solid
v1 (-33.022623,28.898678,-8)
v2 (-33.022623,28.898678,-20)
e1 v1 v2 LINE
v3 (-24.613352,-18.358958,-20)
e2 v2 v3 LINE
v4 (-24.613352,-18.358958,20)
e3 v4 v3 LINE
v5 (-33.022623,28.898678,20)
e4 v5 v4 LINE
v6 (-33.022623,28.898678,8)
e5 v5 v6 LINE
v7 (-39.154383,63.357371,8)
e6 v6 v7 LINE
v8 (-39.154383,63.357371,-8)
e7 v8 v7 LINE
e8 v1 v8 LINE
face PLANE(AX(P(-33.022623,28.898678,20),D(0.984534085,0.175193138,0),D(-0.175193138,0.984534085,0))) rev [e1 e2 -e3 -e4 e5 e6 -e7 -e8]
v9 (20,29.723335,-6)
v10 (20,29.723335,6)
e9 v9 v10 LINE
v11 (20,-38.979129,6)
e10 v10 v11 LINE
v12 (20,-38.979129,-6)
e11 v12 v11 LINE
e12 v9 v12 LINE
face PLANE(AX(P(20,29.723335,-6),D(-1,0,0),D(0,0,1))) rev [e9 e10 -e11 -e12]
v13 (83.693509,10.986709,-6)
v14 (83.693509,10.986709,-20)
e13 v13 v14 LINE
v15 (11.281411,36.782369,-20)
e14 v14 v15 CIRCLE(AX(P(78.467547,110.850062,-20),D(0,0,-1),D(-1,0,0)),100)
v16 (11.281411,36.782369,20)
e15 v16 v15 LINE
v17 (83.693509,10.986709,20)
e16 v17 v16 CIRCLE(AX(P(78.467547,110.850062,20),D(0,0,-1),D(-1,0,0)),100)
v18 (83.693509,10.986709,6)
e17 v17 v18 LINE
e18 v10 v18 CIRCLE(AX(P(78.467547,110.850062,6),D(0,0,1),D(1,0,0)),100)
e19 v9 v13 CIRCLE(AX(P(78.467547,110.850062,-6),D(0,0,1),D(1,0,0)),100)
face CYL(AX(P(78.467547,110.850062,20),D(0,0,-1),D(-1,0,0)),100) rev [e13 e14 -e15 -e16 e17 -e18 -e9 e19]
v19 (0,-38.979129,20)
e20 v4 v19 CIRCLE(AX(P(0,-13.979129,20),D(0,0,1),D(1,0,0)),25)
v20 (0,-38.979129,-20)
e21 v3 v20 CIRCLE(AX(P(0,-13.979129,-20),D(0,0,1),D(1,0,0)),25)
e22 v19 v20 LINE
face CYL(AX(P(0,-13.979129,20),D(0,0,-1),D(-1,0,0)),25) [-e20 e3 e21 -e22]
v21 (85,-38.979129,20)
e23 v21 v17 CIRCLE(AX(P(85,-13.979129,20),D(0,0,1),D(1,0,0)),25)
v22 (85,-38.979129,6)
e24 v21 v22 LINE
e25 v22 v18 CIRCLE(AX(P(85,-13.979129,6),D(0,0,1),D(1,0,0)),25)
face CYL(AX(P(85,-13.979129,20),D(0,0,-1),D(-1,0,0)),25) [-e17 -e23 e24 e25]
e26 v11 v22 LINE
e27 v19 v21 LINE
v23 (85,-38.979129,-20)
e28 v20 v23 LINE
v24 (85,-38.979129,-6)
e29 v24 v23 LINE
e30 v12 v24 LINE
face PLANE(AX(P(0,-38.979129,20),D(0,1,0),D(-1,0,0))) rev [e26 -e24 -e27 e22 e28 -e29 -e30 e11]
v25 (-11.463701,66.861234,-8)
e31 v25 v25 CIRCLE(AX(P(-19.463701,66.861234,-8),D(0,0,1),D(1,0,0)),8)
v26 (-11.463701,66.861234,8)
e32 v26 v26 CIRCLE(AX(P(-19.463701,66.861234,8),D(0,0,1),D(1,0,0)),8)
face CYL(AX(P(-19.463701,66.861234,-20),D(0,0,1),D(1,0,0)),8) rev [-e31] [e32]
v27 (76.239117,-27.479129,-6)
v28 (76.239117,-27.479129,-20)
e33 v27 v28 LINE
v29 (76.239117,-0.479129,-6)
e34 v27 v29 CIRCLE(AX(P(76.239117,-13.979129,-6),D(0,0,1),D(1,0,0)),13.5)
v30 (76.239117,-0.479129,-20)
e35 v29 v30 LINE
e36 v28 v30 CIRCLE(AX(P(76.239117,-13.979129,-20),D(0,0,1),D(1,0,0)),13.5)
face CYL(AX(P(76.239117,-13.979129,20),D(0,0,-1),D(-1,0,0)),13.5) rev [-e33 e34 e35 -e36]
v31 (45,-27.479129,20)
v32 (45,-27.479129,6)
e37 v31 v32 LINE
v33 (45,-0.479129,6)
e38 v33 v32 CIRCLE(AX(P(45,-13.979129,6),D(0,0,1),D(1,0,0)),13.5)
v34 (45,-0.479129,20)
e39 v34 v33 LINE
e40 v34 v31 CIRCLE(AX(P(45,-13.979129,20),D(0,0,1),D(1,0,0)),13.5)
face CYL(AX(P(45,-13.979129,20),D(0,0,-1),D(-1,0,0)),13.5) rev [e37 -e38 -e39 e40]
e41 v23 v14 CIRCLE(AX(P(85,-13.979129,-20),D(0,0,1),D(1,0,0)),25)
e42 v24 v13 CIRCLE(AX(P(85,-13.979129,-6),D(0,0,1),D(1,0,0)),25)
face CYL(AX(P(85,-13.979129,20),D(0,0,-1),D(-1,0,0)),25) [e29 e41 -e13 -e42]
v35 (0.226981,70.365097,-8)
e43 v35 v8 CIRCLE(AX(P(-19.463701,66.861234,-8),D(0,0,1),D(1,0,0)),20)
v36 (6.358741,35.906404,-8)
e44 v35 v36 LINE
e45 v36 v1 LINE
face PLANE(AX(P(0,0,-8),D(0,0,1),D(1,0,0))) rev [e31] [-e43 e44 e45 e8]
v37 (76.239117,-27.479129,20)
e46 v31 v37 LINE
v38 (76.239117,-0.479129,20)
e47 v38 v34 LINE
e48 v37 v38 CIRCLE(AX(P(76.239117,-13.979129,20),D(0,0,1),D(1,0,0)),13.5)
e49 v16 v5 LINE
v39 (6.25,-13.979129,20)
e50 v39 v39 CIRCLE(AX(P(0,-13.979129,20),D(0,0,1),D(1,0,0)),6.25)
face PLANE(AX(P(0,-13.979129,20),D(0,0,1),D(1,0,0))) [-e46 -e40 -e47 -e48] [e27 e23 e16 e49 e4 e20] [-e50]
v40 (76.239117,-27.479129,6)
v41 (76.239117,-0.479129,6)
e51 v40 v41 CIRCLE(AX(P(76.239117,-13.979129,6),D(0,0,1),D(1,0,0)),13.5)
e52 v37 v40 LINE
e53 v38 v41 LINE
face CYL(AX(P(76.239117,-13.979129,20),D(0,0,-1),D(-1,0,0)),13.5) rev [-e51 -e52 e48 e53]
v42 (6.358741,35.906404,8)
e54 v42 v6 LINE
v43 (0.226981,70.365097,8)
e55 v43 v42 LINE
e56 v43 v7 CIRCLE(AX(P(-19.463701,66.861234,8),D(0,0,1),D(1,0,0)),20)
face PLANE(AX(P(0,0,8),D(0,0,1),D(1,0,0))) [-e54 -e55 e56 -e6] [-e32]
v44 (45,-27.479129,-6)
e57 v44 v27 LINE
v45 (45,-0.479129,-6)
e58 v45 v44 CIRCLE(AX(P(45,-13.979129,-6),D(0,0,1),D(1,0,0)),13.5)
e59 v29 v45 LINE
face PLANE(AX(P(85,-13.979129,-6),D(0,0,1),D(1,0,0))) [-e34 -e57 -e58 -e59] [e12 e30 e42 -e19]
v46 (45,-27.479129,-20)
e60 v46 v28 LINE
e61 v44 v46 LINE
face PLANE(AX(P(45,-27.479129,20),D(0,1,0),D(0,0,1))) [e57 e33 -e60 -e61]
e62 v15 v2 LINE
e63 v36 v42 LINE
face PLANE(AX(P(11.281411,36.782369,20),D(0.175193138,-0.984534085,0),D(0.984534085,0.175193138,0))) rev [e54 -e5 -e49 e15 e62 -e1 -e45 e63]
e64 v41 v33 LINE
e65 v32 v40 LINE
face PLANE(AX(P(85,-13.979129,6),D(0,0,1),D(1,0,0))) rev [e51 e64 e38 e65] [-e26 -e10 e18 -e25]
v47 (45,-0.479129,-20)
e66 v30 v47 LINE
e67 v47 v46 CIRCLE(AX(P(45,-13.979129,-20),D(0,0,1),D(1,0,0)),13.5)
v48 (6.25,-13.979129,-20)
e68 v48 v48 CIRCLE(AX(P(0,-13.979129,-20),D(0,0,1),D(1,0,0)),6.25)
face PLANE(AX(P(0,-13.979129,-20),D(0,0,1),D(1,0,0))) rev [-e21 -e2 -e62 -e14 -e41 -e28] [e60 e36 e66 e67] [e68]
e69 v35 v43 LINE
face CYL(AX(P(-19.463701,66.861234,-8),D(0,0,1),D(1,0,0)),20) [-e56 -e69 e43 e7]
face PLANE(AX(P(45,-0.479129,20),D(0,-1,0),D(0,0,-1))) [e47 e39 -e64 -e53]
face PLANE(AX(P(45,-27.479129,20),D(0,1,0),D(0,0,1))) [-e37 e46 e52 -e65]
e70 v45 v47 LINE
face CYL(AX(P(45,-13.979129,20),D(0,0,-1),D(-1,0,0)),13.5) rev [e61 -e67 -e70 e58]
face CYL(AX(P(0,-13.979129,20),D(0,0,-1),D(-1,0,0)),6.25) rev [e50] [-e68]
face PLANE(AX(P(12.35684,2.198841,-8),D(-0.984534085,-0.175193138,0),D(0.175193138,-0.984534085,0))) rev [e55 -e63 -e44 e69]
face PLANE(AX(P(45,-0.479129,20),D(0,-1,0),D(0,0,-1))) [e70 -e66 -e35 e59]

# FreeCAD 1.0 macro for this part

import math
import FreeCAD as App
import Part
import Sketcher
Q = App.Units.Quantity

doc = App.newDocument("Part")
body = doc.addObject("PartDesign::Body", "Body")

sketch1 = doc.addObject("Sketcher::SketchObject", "Sketch")
body.addObject(sketch1)
sketch1.AttachmentSupport = (doc.XY_Plane, [""])
sketch1.MapMode = "FlatFace"
sketch1.addGeometry(Part.LineSegment(App.Vector(0, -39, 0), App.Vector(85, -39, 0)), False)
sketch1.addGeometry(Part.ArcOfCircle(Part.Circle(App.Vector(85, -14, 0), App.Vector(0, 0, 1), 25), math.radians(-90), math.radians(93)), False)
sketch1.addGeometry(Part.ArcOfCircle(Part.Circle(App.Vector(78, 111, 0), App.Vector(0, 0, 1), 100), math.radians(-132), math.radians(-87)), False)
sketch1.addGeometry(Part.LineSegment(App.Vector(11, 37, 0), App.Vector(-33, 29, 0)), False)
sketch1.addGeometry(Part.LineSegment(App.Vector(-33, 29, 0), App.Vector(-25, -18, 0)), False)
sketch1.addGeometry(Part.ArcOfCircle(Part.Circle(App.Vector(0, -14, 0), App.Vector(0, 0, 1), 25), math.radians(-170), math.radians(-90)), False)
sketch1.addGeometry(Part.Circle(App.Vector(0, -14, 0), App.Vector(0, 0, 1), 6), False)
sketch1.addGeometry(Part.ArcOfCircle(Part.Circle(App.Vector(45, -14, 0), App.Vector(0, 0, 1), 14), math.radians(90), math.radians(270)), False)
sketch1.addGeometry(Part.LineSegment(App.Vector(45, 0, 0), App.Vector(76, 0, 0)), False)
sketch1.addGeometry(Part.ArcOfCircle(Part.Circle(App.Vector(76, -14, 0), App.Vector(0, 0, 1), 14), math.radians(-90), math.radians(90)), False)
sketch1.addGeometry(Part.LineSegment(App.Vector(76, -27, 0), App.Vector(45, -27, 0)), False)
sketch1.addConstraint(Sketcher.Constraint("Tangent", 0, 2, 1, 1))
sketch1.addConstraint(Sketcher.Constraint("Tangent", 1, 2, 2, 2))
sketch1.addConstraint(Sketcher.Constraint("Coincident", 2, 1, 3, 1))
sketch1.addConstraint(Sketcher.Constraint("Coincident", 3, 2, 4, 1))
sketch1.addConstraint(Sketcher.Constraint("Tangent", 4, 2, 5, 1))
sketch1.addConstraint(Sketcher.Constraint("Tangent", 5, 2, 0, 1))
sketch1.addConstraint(Sketcher.Constraint("Tangent", 7, 1, 8, 1))
sketch1.addConstraint(Sketcher.Constraint("Tangent", 8, 2, 9, 2))
sketch1.addConstraint(Sketcher.Constraint("Tangent", 9, 1, 10, 1))
sketch1.addConstraint(Sketcher.Constraint("Tangent", 10, 2, 7, 2))
sketch1.addConstraint(Sketcher.Constraint("Horizontal", 0))
sketch1.addConstraint(Sketcher.Constraint("Horizontal", 8))
sketch1.addConstraint(Sketcher.Constraint("Horizontal", 10))
sketch1.addConstraint(Sketcher.Constraint("Coincident", 6, 3, 5, 3))
sketch1.addConstraint(Sketcher.Constraint("Equal", 1, 5))
sketch1.addConstraint(Sketcher.Constraint("PointOnObject", 5, 3, -2))
sketch1.addConstraint(Sketcher.Constraint("Perpendicular", 3, 4))
sketch1.addConstraint(Sketcher.Constraint("Horizontal", 6, 3, 7, 3))
sketch1.addConstraint(Sketcher.Constraint("Radius", 1, Q("25 mm")))
sketch1.addConstraint(Sketcher.Constraint("Radius", 2, Q("100 mm")))
sketch1.addConstraint(Sketcher.Constraint("Diameter", 6, Q("12.5 mm")))
sketch1.addConstraint(Sketcher.Constraint("Radius", 7, Q("13.5 mm")))
sketch1.addConstraint(Sketcher.Constraint("DistanceX", 0, 1, 0, 2, Q("85 mm")))
sketch1.addConstraint(Sketcher.Constraint("Distance", 3, Q("45 mm")))
sketch1.addConstraint(Sketcher.Constraint("Distance", 4, Q("48 mm")))
sketch1.addConstraint(Sketcher.Constraint("DistanceX", -1, 1, 7, 3, Q("45 mm")))
sketch1.addConstraint(Sketcher.Constraint("DistanceX", 2, 1, 1, 2, Q("72.412098 mm")))
sketch1.addConstraint(Sketcher.Constraint("DistanceX", 8, 1, 8, 2, Q("31.239117 mm")))
sketch1.addConstraint(Sketcher.Constraint("DistanceY", 1, 3, -1, 1, Q("13.979129 mm")))
pad1 = doc.addObject("PartDesign::Pad", "Pad")
body.addObject(pad1)
pad1.Profile = sketch1
pad1.Length = 40
pad1.Midplane = True

sketch2 = doc.addObject("Sketcher::SketchObject", "Sketch001")
body.addObject(sketch2)
sketch2.AttachmentSupport = (doc.XY_Plane, [""])
sketch2.MapMode = "FlatFace"
sketch2.addGeometry(Part.LineSegment(App.Vector(20, 30, 0), App.Vector(20, -39, 0)), False)
sketch2.addGeometry(Part.LineSegment(App.Vector(20, -39, 0), App.Vector(85, -39, 0)), False)
sketch2.addGeometry(Part.ArcOfCircle(Part.Circle(App.Vector(85, -14, 0), App.Vector(0, 0, 1), 25), math.radians(-90), math.radians(93)), False)
sketch2.addGeometry(Part.ArcOfCircle(Part.Circle(App.Vector(78, 111, 0), App.Vector(0, 0, 1), 100), math.radians(-126), math.radians(-87)), False)
sketch2.addConstraint(Sketcher.Constraint("Coincident", 0, 2, 1, 1))
sketch2.addConstraint(Sketcher.Constraint("Tangent", 1, 2, 2, 1))
sketch2.addConstraint(Sketcher.Constraint("Tangent", 2, 2, 3, 2))
sketch2.addConstraint(Sketcher.Constraint("Coincident", 3, 1, 0, 1))
sketch2.addConstraint(Sketcher.Constraint("Vertical", 0))
sketch2.addConstraint(Sketcher.Constraint("Horizontal", 1))
sketch2.addConstraint(Sketcher.Constraint("Radius", 2, Q("25 mm")))
sketch2.addConstraint(Sketcher.Constraint("Radius", 3, Q("100 mm")))
sketch2.addConstraint(Sketcher.Constraint("DistanceX", 1, 1, 1, 2, Q("65 mm")))
sketch2.addConstraint(Sketcher.Constraint("DistanceX", -1, 1, 2, 3, Q("85 mm")))
sketch2.addConstraint(Sketcher.Constraint("DistanceY", 0, 2, 0, 1, Q("68.702464 mm")))
sketch2.addConstraint(Sketcher.Constraint("DistanceY", 2, 3, -1, 1, Q("13.979129 mm")))
pocket1 = doc.addObject("PartDesign::Pocket", "Pocket")
body.addObject(pocket1)
pocket1.Profile = sketch2
pocket1.Length = 12
pocket1.Midplane = True

sketch3 = doc.addObject("Sketcher::SketchObject", "Sketch002")
body.addObject(sketch3)
sketch3.AttachmentSupport = (doc.XY_Plane, [""])
sketch3.MapMode = "FlatFace"
sketch3.addGeometry(Part.LineSegment(App.Vector(6, 36, 0), App.Vector(0, 70, 0)), False)
sketch3.addGeometry(Part.ArcOfCircle(Part.Circle(App.Vector(-19, 67, 0), App.Vector(0, 0, 1), 20), math.radians(10), math.radians(190)), False)
sketch3.addGeometry(Part.LineSegment(App.Vector(-39, 63, 0), App.Vector(-33, 29, 0)), False)
sketch3.addGeometry(Part.LineSegment(App.Vector(-33, 29, 0), App.Vector(6, 36, 0)), False)
sketch3.addConstraint(Sketcher.Constraint("Tangent", 0, 2, 1, 1))
sketch3.addConstraint(Sketcher.Constraint("Tangent", 1, 2, 2, 1))
sketch3.addConstraint(Sketcher.Constraint("Coincident", 2, 2, 3, 1))
sketch3.addConstraint(Sketcher.Constraint("Coincident", 3, 2, 0, 1))
sketch3.addConstraint(Sketcher.Constraint("Parallel", 0, 2))
sketch3.addConstraint(Sketcher.Constraint("Perpendicular", 2, 3))
sketch3.addConstraint(Sketcher.Constraint("Radius", 1, Q("20 mm")))
sketch3.addConstraint(Sketcher.Constraint("Distance", 0, Q("35 mm")))
sketch3.addConstraint(Sketcher.Constraint("DistanceX", 1, 3, -1, 1, Q("19.463701 mm")))
sketch3.addConstraint(Sketcher.Constraint("DistanceX", -1, 1, 0, 2, Q("0.226981 mm")))
sketch3.addConstraint(Sketcher.Constraint("DistanceY", -1, 1, 1, 2, Q("63.357371 mm")))
pad2 = doc.addObject("PartDesign::Pad", "Pad001")
body.addObject(pad2)
pad2.Profile = sketch3
pad2.Type = "TwoLengths"
pad2.Length = 8
pad2.Length2 = 8

sketch4 = doc.addObject("Sketcher::SketchObject", "Sketch003")
body.addObject(sketch4)
sketch4.AttachmentSupport = (doc.XY_Plane, [""])
sketch4.MapMode = "FlatFace"
sketch4.AttachmentOffset = App.Placement(App.Vector(0, 0, 8), App.Rotation())
sketch4.addGeometry(Part.Circle(App.Vector(-19, 67, 0), App.Vector(0, 0, 1), 8), False)
sketch4.addConstraint(Sketcher.Constraint("Diameter", 0, Q("16 mm")))
sketch4.addConstraint(Sketcher.Constraint("DistanceX", 0, 3, -1, 1, Q("19.463701 mm")))
sketch4.addConstraint(Sketcher.Constraint("DistanceY", -1, 1, 0, 3, Q("66.861234 mm")))
pocket2 = doc.addObject("PartDesign::Pocket", "Pocket001")
body.addObject(pocket2)
pocket2.Profile = sketch4
pocket2.Type = "ThroughAll"

doc.recompute()
